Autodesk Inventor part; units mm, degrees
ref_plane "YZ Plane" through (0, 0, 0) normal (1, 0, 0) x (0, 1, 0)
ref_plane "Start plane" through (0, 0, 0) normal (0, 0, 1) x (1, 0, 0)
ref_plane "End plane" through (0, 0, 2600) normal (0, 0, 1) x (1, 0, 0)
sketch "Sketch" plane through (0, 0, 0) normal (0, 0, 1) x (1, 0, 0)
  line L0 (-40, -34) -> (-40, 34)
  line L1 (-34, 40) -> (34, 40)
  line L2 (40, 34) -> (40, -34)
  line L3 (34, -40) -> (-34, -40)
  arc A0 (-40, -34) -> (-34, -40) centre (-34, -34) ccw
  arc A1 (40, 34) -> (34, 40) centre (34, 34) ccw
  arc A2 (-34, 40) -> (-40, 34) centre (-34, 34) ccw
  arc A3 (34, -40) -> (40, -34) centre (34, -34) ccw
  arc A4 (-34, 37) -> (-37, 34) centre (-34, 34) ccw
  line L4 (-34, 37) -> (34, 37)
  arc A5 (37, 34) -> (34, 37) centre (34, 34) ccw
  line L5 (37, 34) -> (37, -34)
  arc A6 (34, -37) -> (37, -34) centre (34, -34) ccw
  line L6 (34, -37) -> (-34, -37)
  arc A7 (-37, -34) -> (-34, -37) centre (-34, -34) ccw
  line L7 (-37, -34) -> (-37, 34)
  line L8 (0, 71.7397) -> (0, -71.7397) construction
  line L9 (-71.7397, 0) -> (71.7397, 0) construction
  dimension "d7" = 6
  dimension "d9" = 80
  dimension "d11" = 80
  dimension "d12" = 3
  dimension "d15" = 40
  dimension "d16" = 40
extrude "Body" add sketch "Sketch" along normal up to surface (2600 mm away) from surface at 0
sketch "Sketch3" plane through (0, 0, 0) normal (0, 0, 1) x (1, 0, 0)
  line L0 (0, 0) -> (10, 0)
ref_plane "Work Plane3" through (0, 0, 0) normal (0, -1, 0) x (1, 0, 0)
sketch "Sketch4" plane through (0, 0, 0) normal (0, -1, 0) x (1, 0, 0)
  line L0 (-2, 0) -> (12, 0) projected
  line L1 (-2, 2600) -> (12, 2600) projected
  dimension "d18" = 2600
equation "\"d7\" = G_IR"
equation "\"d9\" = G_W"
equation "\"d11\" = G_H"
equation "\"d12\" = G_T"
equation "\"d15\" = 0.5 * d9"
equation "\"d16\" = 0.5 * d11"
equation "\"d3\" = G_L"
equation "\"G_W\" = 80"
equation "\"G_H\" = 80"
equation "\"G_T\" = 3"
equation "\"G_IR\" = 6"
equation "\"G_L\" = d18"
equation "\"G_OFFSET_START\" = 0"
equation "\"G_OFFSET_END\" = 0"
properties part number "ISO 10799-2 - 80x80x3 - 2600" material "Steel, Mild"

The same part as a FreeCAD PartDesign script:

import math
import FreeCAD as App
import Part
import Sketcher

doc = App.newDocument("Part")
params = doc.addObject("Spreadsheet::Sheet", "Params")
for row, (alias, value) in enumerate([
    ("sketch1_radius", "6 mm"),
    ("sketch1_radius2", "3 mm"),
    ("pad1_length", "2600 mm"),
], start=1):
    params.set(f"A{row}", alias)
    params.set(f"B{row}", "=" + value)
    params.setAlias(f"B{row}", alias)

body = doc.addObject("PartDesign::Body", "Body")

# Sketch on XY plane
sketch1 = doc.addObject("Sketcher::SketchObject", "Sketch")
body.addObject(sketch1)
sketch1.AttachmentSupport = (doc.XY_Plane, [""])
sketch1.MapMode = "FlatFace"
sketch1.addGeometry(Part.LineSegment(App.Vector(-40, 34, 0), App.Vector(-40, -34, 0)), False)
sketch1.addGeometry(Part.ArcOfCircle(Part.Circle(App.Vector(-34, -34, 0), App.Vector(0, 0, 1), 6), math.radians(180), math.radians(270)), False)
sketch1.addGeometry(Part.LineSegment(App.Vector(-34, -40, 0), App.Vector(34, -40, 0)), False)
sketch1.addGeometry(Part.ArcOfCircle(Part.Circle(App.Vector(34, -34, 0), App.Vector(0, 0, 1), 6), math.radians(-90), math.radians(0)), False)
sketch1.addGeometry(Part.LineSegment(App.Vector(40, -34, 0), App.Vector(40, 34, 0)), False)
sketch1.addGeometry(Part.ArcOfCircle(Part.Circle(App.Vector(34, 34, 0), App.Vector(0, 0, 1), 6), math.radians(0), math.radians(90)), False)
sketch1.addGeometry(Part.LineSegment(App.Vector(34, 40, 0), App.Vector(-34, 40, 0)), False)
sketch1.addGeometry(Part.ArcOfCircle(Part.Circle(App.Vector(-34, 34, 0), App.Vector(0, 0, 1), 6), math.radians(90), math.radians(180)), False)
sketch1.addGeometry(Part.ArcOfCircle(Part.Circle(App.Vector(-34, 34, 0), App.Vector(0, 0, 1), 3), math.radians(90), math.radians(180)), False)
sketch1.addGeometry(Part.LineSegment(App.Vector(-34, 37, 0), App.Vector(34, 37, 0)), False)
sketch1.addGeometry(Part.ArcOfCircle(Part.Circle(App.Vector(34, 34, 0), App.Vector(0, 0, 1), 3), math.radians(0), math.radians(90)), False)
sketch1.addGeometry(Part.LineSegment(App.Vector(37, 34, 0), App.Vector(37, -34, 0)), False)
sketch1.addGeometry(Part.ArcOfCircle(Part.Circle(App.Vector(34, -34, 0), App.Vector(0, 0, 1), 3), math.radians(-90), math.radians(0)), False)
sketch1.addGeometry(Part.LineSegment(App.Vector(34, -37, 0), App.Vector(-34, -37, 0)), False)
sketch1.addGeometry(Part.ArcOfCircle(Part.Circle(App.Vector(-34, -34, 0), App.Vector(0, 0, 1), 3), math.radians(180), math.radians(270)), False)
sketch1.addGeometry(Part.LineSegment(App.Vector(-37, -34, 0), App.Vector(-37, 34, 0)), False)
sketch1.addConstraint(Sketcher.Constraint("Tangent", 0, 2, 1, 1))
sketch1.addConstraint(Sketcher.Constraint("Tangent", 1, 2, 2, 1))
sketch1.addConstraint(Sketcher.Constraint("Tangent", 2, 2, 3, 1))
sketch1.addConstraint(Sketcher.Constraint("Tangent", 3, 2, 4, 1))
sketch1.addConstraint(Sketcher.Constraint("Tangent", 4, 2, 5, 1))
sketch1.addConstraint(Sketcher.Constraint("Tangent", 5, 2, 6, 1))
sketch1.addConstraint(Sketcher.Constraint("Tangent", 6, 2, 7, 1))
sketch1.addConstraint(Sketcher.Constraint("Tangent", 7, 2, 0, 1))
sketch1.addConstraint(Sketcher.Constraint("Tangent", 8, 1, 9, 1))
sketch1.addConstraint(Sketcher.Constraint("Tangent", 9, 2, 10, 2))
sketch1.addConstraint(Sketcher.Constraint("Tangent", 10, 1, 11, 1))
sketch1.addConstraint(Sketcher.Constraint("Tangent", 11, 2, 12, 2))
sketch1.addConstraint(Sketcher.Constraint("Tangent", 12, 1, 13, 1))
sketch1.addConstraint(Sketcher.Constraint("Tangent", 13, 2, 14, 2))
sketch1.addConstraint(Sketcher.Constraint("Tangent", 14, 1, 15, 1))
sketch1.addConstraint(Sketcher.Constraint("Tangent", 15, 2, 8, 2))
sketch1.addConstraint(Sketcher.Constraint("Vertical", 0))
sketch1.addConstraint(Sketcher.Constraint("Horizontal", 2))
sketch1.addConstraint(Sketcher.Constraint("Vertical", 4))
sketch1.addConstraint(Sketcher.Constraint("Horizontal", 6))
sketch1.addConstraint(Sketcher.Constraint("Horizontal", 9))
sketch1.addConstraint(Sketcher.Constraint("Vertical", 11))
sketch1.addConstraint(Sketcher.Constraint("Horizontal", 13))
sketch1.addConstraint(Sketcher.Constraint("Vertical", 15))
sketch1.addConstraint(Sketcher.Constraint("Coincident", 8, 3, 7, 3))
sketch1.addConstraint(Sketcher.Constraint("Coincident", 10, 3, 5, 3))
sketch1.addConstraint(Sketcher.Constraint("Coincident", 12, 3, 3, 3))
sketch1.addConstraint(Sketcher.Constraint("Equal", 1, 3))
sketch1.addConstraint(Sketcher.Constraint("Equal", 3, 5))
sketch1.addConstraint(Sketcher.Constraint("Equal", 5, 7))
sketch1.addConstraint(Sketcher.Constraint("Equal", 12, 14))
sketch1.addConstraint(Sketcher.Constraint("Symmetric", 1, 3, 5, 3, -1, 1))
sketch1.addConstraint(Sketcher.Constraint("Equal", 13, 0))
sketch1.addConstraint(Sketcher.Constraint("Radius", 1, 6.0))
sketch1.addConstraint(Sketcher.Constraint("Radius", 8, 3.0))
sketch1.addConstraint(Sketcher.Constraint("DistanceX", 0, 2, -1, 1, 40.0))
sketch1.setExpression("Constraints[33]", "Params.sketch1_radius")
sketch1.setExpression("Constraints[34]", "Params.sketch1_radius2")
pad1 = doc.addObject("PartDesign::Pad", "Pad")
body.addObject(pad1)
pad1.Profile = sketch1
pad1.setExpression("Length", "Params.pad1_length")

doc.recompute()
